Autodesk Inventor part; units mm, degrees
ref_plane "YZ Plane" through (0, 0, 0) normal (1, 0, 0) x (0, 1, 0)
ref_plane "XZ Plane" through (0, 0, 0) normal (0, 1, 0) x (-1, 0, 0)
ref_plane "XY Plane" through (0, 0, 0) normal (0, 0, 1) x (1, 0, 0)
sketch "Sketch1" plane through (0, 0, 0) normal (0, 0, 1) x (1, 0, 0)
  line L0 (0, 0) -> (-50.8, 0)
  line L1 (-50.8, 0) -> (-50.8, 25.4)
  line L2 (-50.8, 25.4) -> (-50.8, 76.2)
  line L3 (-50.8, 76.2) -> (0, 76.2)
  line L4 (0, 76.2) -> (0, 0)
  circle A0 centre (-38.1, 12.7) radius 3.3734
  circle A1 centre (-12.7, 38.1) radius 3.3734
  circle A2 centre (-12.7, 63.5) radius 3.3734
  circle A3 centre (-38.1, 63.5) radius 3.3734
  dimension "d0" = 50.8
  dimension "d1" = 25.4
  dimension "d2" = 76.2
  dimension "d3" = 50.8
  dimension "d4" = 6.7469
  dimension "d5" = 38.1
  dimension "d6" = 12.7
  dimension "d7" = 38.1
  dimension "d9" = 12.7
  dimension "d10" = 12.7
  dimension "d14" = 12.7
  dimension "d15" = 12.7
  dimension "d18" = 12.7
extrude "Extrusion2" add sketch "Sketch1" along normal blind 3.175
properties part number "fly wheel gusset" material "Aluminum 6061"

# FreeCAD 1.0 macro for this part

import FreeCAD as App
import Part
import Sketcher
from FreeCAD import Vector
Q = App.Units.Quantity

doc = App.newDocument("Part")
body = doc.addObject("PartDesign::Body", "Body")

sketch1 = doc.addObject("Sketcher::SketchObject", "Sketch")
body.addObject(sketch1)
sketch1.AttachmentSupport = (doc.XY_Plane, [""])
sketch1.MapMode = "FlatFace"
sketch1.addGeometry([
    Part.LineSegment(Vector(-50.8, 0, 0), Vector(0, 0, 0)),
    Part.LineSegment(Vector(0, 0, 0), Vector(0, 76.2, 0)),
    Part.LineSegment(Vector(0, 76.2, 0), Vector(-50.8, 76.2, 0)),
    Part.LineSegment(Vector(-50.8, 76.2, 0), Vector(-50.8, 0, 0)),
    Part.Circle(Vector(-38.1, 12.7, 0), Vector(0, 0, 1), 3.4),
    Part.Circle(Vector(-38.1, 63.5, 0), Vector(0, 0, 1), 3.4),
    Part.Circle(Vector(-12.7, 38.1, 0), Vector(0, 0, 1), 3.4),
    Part.Circle(Vector(-12.7, 63.5, 0), Vector(0, 0, 1), 3.4),
], False)
sketch1.addConstraint([
    Sketcher.Constraint("Coincident", 0, 2, 1, 1),
    Sketcher.Constraint("Coincident", 1, 2, 2, 1),
    Sketcher.Constraint("Coincident", 2, 2, 3, 1),
    Sketcher.Constraint("Coincident", 3, 2, 0, 1),
    Sketcher.Constraint("Horizontal", 0),
    Sketcher.Constraint("Vertical", 1),
    Sketcher.Constraint("Horizontal", 2),
    Sketcher.Constraint("Vertical", 3),
    Sketcher.Constraint("Coincident", 0, 2, -1, 1),
    Sketcher.Constraint("Equal", 4, 5),
    Sketcher.Constraint("Equal", 5, 6),
    Sketcher.Constraint("Equal", 6, 7),
    Sketcher.Constraint("Horizontal", 5, 3, 7, 3),
    Sketcher.Constraint("Vertical", 4, 3, 5, 3),
    Sketcher.Constraint("Vertical", 6, 3, 7, 3),
    Sketcher.Constraint("DistanceX", 0, 1, 0, 2, Q("2 in")),
    Sketcher.Constraint("DistanceY", 1, 1, 1, 2, Q("3 in")),
    Sketcher.Constraint("Diameter", 4, Q("0.265622 in")),
    Sketcher.Constraint("DistanceY", 4, 3, 5, 3, Q("2 in")),
    Sketcher.Constraint("DistanceX", 4, 3, 6, 3, Q("1 in")),
    Sketcher.Constraint("DistanceY", 4, 3, 6, 3, Q("1 in")),
    Sketcher.Constraint("DistanceX", 4, 3, -1, 1, Q("1.5 in")),
    Sketcher.Constraint("DistanceY", -1, 1, 4, 3, Q("0.5 in")),
])
pad1 = doc.addObject("PartDesign::Pad", "Pad")
body.addObject(pad1)
pad1.Profile = sketch1
pad1.Length = Q("0.125 in")

doc.recompute()
